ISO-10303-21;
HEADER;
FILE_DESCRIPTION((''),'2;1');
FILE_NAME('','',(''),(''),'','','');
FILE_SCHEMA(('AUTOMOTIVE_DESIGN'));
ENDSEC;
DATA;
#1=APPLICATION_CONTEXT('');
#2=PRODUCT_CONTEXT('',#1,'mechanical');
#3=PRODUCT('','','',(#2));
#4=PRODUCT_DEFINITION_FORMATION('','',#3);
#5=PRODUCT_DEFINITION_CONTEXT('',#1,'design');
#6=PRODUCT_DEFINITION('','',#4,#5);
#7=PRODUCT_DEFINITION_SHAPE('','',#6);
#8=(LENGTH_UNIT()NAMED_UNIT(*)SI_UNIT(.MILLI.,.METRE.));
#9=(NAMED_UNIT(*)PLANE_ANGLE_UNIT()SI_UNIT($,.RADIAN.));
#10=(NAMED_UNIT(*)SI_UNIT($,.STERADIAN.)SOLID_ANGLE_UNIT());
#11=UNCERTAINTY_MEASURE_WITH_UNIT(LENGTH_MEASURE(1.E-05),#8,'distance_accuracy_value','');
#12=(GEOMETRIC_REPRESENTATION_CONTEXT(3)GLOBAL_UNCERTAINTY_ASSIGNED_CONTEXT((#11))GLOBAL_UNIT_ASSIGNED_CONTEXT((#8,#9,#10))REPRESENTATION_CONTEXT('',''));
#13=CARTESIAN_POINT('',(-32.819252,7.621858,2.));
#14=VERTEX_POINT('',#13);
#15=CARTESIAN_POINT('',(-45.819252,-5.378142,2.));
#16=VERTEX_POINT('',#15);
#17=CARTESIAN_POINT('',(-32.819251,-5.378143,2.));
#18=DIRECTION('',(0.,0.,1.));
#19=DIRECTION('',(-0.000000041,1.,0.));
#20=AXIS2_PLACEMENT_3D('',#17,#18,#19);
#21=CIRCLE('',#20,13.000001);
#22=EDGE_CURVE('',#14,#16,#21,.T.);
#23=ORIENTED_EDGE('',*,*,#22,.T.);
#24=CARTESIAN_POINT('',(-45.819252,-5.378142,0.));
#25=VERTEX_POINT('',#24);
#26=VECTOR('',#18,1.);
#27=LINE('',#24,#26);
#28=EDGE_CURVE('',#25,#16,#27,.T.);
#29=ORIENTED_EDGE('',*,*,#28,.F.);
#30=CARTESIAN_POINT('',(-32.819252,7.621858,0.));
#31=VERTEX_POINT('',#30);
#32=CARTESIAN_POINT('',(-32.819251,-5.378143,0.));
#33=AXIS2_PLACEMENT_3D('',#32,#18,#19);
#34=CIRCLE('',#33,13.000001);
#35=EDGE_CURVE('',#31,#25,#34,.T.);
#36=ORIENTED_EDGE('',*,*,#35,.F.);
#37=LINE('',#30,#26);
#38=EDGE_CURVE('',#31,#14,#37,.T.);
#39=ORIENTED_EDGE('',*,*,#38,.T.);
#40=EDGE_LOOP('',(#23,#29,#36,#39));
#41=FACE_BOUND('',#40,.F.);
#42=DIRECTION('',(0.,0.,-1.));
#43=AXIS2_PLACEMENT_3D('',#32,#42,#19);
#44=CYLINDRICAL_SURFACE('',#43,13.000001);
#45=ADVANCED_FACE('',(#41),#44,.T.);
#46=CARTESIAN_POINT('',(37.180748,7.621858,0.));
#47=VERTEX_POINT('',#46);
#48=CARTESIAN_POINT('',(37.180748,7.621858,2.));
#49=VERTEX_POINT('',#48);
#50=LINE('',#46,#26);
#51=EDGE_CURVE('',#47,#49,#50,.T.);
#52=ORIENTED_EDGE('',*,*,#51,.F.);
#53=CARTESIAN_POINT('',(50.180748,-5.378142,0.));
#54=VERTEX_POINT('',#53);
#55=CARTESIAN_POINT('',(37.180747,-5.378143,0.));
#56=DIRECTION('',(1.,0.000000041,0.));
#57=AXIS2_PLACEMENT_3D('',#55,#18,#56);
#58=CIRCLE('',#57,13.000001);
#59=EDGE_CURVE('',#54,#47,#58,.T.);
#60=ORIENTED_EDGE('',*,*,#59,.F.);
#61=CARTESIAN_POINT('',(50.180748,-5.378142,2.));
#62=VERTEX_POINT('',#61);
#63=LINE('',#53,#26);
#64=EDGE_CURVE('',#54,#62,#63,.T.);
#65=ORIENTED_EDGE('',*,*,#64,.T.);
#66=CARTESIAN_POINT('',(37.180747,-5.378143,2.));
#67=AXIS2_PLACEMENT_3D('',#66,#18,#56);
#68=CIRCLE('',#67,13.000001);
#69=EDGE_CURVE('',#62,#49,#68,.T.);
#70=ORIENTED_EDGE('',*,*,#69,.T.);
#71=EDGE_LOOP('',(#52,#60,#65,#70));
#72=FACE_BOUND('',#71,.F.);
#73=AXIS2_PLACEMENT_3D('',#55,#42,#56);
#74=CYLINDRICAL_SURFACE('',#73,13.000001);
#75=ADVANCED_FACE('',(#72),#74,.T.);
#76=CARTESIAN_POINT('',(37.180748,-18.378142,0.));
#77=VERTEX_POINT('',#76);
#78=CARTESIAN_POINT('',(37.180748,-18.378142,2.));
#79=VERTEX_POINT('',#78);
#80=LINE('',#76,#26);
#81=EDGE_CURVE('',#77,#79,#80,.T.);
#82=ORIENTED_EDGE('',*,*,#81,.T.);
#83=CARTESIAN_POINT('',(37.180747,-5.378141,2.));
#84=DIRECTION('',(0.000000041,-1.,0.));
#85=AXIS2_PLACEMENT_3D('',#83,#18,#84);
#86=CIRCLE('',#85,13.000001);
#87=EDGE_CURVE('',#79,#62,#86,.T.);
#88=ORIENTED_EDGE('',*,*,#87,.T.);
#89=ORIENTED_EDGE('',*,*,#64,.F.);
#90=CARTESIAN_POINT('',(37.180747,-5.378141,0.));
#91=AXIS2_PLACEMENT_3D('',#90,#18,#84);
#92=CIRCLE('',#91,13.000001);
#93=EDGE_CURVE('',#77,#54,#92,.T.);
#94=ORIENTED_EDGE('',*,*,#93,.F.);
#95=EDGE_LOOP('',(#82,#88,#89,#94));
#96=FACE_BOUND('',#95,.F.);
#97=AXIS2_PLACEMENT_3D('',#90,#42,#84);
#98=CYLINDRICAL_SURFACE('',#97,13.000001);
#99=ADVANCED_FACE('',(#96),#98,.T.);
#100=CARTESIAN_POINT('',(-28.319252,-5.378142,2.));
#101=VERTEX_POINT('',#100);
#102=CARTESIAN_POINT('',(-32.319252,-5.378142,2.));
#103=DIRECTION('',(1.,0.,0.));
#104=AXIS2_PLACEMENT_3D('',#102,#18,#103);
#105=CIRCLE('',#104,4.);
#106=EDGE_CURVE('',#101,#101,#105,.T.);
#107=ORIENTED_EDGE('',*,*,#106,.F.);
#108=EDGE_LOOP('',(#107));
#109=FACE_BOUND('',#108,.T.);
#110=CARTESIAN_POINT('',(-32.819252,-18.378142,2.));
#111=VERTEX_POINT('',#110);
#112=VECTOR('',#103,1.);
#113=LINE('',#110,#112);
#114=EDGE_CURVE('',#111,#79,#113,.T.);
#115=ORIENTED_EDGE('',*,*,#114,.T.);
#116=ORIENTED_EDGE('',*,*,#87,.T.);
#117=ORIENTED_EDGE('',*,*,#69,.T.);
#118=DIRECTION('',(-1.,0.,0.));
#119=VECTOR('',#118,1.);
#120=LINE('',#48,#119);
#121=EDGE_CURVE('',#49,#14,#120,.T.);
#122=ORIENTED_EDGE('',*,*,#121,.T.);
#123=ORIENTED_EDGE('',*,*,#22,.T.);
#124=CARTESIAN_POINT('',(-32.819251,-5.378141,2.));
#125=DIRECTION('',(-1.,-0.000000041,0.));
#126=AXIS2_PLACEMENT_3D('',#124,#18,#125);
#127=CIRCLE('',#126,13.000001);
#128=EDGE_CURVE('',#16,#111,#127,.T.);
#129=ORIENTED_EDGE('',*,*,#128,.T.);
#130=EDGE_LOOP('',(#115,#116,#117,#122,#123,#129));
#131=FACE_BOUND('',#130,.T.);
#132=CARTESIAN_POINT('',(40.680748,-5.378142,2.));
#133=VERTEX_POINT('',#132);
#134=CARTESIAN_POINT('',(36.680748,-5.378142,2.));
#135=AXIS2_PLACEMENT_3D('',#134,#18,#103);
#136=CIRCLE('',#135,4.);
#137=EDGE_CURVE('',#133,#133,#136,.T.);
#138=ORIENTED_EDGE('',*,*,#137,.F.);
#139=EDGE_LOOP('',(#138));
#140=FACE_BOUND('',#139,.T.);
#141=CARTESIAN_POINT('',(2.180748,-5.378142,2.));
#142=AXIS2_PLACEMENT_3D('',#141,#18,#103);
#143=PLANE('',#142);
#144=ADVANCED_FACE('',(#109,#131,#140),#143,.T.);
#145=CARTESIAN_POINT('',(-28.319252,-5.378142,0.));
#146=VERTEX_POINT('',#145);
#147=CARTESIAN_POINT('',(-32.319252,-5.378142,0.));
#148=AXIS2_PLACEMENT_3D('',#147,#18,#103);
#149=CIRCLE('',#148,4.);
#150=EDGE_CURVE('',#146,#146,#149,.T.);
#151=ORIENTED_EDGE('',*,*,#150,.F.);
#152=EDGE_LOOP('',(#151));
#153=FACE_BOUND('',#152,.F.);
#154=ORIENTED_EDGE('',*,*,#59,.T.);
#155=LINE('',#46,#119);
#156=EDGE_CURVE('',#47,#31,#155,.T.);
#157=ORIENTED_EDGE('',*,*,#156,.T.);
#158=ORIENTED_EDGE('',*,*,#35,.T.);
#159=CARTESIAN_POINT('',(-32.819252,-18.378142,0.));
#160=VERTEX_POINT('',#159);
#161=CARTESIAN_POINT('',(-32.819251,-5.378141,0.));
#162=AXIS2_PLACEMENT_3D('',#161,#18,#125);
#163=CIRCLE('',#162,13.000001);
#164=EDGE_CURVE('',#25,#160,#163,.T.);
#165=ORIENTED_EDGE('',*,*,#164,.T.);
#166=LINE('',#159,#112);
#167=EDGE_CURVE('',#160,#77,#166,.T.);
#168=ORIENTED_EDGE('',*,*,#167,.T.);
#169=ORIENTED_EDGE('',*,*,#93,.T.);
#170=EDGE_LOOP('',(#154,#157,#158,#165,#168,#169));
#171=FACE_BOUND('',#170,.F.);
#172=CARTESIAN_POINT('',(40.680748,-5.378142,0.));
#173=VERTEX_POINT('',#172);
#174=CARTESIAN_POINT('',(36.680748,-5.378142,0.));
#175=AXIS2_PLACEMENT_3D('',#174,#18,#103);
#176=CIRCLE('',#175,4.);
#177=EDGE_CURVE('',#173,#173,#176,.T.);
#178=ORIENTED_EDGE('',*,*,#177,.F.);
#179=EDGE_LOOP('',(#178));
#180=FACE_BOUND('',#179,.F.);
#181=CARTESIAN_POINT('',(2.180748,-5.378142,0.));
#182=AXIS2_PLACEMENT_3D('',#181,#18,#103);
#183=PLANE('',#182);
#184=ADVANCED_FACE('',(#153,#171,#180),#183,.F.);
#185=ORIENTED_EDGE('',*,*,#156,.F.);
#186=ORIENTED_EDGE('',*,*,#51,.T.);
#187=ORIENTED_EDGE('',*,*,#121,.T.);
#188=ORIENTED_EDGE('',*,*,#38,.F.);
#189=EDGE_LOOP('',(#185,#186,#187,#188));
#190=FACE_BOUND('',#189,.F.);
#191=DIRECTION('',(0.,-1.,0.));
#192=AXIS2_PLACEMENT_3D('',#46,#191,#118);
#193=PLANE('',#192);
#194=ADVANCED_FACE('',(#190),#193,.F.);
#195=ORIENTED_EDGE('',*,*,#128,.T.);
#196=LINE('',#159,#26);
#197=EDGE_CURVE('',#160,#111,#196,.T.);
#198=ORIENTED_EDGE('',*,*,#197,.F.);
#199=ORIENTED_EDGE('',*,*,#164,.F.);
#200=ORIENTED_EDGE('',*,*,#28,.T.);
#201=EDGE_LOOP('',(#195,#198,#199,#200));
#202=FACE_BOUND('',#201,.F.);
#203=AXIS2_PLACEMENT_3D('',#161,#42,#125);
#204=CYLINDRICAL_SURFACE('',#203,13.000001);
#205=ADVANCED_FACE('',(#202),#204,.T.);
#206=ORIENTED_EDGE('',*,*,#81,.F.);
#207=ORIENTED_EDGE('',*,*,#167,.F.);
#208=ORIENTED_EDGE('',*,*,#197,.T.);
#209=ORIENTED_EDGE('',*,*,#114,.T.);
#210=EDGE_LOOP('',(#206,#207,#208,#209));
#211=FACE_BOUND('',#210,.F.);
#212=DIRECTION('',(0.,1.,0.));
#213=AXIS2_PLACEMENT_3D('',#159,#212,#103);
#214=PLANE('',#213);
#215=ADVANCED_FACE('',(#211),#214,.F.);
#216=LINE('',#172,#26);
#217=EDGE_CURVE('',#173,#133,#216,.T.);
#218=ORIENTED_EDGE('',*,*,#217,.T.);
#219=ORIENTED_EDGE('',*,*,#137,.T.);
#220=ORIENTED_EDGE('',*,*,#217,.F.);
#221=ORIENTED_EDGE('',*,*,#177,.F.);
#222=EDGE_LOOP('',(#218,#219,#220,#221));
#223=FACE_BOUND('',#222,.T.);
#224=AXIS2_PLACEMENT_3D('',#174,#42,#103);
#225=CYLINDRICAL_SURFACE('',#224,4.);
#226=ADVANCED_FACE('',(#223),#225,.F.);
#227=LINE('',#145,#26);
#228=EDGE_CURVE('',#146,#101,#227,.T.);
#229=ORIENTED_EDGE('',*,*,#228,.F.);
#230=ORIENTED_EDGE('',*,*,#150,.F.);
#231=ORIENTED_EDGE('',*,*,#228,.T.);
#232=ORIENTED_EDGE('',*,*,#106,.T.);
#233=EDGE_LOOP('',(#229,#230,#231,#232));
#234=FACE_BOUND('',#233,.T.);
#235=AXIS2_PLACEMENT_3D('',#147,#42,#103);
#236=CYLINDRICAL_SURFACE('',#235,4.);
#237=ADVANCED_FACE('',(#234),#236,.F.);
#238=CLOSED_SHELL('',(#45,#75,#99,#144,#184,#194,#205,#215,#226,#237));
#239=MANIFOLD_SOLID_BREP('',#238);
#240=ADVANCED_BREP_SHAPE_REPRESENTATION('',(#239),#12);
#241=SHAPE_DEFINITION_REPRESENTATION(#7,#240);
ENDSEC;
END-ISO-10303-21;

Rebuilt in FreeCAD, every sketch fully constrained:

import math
import FreeCAD as App
import Part
import Sketcher
from FreeCAD import Vector
Q = App.Units.Quantity

doc = App.newDocument("Part")
params = doc.addObject("Spreadsheet::Sheet", "Params")
for row, (alias, value) in enumerate([
    ("sketch1_diameter", "8 mm"),
    ("sketch1_radius", "13.000001 mm"),
    ("sketch1_width", "70 mm"),
    ("pad1_length", "2 mm"),
], start=1):
    params.set(f"A{row}", alias)
    params.set(f"B{row}", "=" + value)
    params.setAlias(f"B{row}", alias)

body = doc.addObject("PartDesign::Body", "Body")

# Sketch on XY plane
sketch1 = body.newObject("Sketcher::SketchObject", "Sketch")
sketch1.AttachmentSupport = (doc.getObject("XY_Plane"), [""])
sketch1.MapMode = "FlatFace"
sketch1.addGeometry(Part.LineSegment(Vector(37.180748, 7.621858, 0), Vector(-32.819252, 7.621858, 0)), False)
sketch1.addGeometry(Part.ArcOfCircle(Part.Circle(Vector(-32.819251, -5.378143, 0), Vector(0, 0, 1), 13.000001), math.radians(90.000002), math.radians(179.999998)), False)
sketch1.addGeometry(Part.ArcOfCircle(Part.Circle(Vector(-32.819251, -5.378141, 0), Vector(0, 0, 1), 13.000001), math.radians(-179.999998), math.radians(-90.000002)), False)
sketch1.addGeometry(Part.LineSegment(Vector(-32.819252, -18.378142, 0), Vector(37.180748, -18.378142, 0)), False)
sketch1.addGeometry(Part.ArcOfCircle(Part.Circle(Vector(37.180747, -5.378141, 0), Vector(0, 0, 1), 13.000001), math.radians(-89.999998), math.radians(-0.000002)), False)
sketch1.addGeometry(Part.ArcOfCircle(Part.Circle(Vector(37.180747, -5.378143, 0), Vector(0, 0, 1), 13.000001), math.radians(0.000002), math.radians(89.999998)), False)
sketch1.addGeometry(Part.Circle(Vector(-32.319252, -5.378142, 0), Vector(0, 0, 1), 4), False)
sketch1.addGeometry(Part.Circle(Vector(36.680748, -5.378142, 0), Vector(0, 0, 1), 4), False)
sketch1.addConstraint(Sketcher.Constraint("Tangent", 0, 2, 1, 1))
sketch1.addConstraint(Sketcher.Constraint("Tangent", 1, 2, 2, 1))
sketch1.addConstraint(Sketcher.Constraint("Tangent", 2, 2, 3, 1))
sketch1.addConstraint(Sketcher.Constraint("Tangent", 3, 2, 4, 1))
sketch1.addConstraint(Sketcher.Constraint("Tangent", 4, 2, 5, 1))
sketch1.addConstraint(Sketcher.Constraint("Tangent", 5, 2, 0, 1))
sketch1.addConstraint(Sketcher.Constraint("Horizontal", 0))
sketch1.addConstraint(Sketcher.Constraint("Horizontal", 3))
sketch1.addConstraint(Sketcher.Constraint("Equal", 1, 2))
sketch1.addConstraint(Sketcher.Constraint("Equal", 2, 4))
sketch1.addConstraint(Sketcher.Constraint("Equal", 6, 7))
sketch1.addConstraint(Sketcher.Constraint("Horizontal", 5, 3, 6, 3))
sketch1.addConstraint(Sketcher.Constraint("Horizontal", 6, 3, 7, 3))
sketch1.addConstraint(Sketcher.Constraint("Horizontal", 7, 3, 1, 2))
sketch1.addConstraint(Sketcher.Constraint("Horizontal", 1, 2, 4, 2))
sketch1.addConstraint(Sketcher.Constraint("Diameter", 6, Q("8 mm")))
sketch1.addConstraint(Sketcher.Constraint("Radius", 1, Q("13.000001 mm")))
sketch1.addConstraint(Sketcher.Constraint("DistanceX", 0, 2, 0, 1, Q("70 mm")))
sketch1.addConstraint(Sketcher.Constraint("DistanceX", 6, 3, 7, 3, Q("69 mm")))
sketch1.addConstraint(Sketcher.Constraint("DistanceX", 1, 3, 6, 3, Q("0.499999 mm")))
sketch1.addConstraint(Sketcher.Constraint("DistanceX", 1, 3, -1, 1, Q("32.819251 mm")))
sketch1.addConstraint(Sketcher.Constraint("DistanceY", 2, 3, -1, 1, Q("5.378141 mm")))
sketch1.setExpression("Constraints[15]", "Params.sketch1_diameter")
sketch1.setExpression("Constraints[16]", "Params.sketch1_radius")
sketch1.setExpression("Constraints[17]", "Params.sketch1_width")
pad1 = body.newObject("PartDesign::Pad", "Pad")
pad1.Profile = sketch1
pad1.setExpression("Length", "Params.pad1_length")

doc.recompute()
